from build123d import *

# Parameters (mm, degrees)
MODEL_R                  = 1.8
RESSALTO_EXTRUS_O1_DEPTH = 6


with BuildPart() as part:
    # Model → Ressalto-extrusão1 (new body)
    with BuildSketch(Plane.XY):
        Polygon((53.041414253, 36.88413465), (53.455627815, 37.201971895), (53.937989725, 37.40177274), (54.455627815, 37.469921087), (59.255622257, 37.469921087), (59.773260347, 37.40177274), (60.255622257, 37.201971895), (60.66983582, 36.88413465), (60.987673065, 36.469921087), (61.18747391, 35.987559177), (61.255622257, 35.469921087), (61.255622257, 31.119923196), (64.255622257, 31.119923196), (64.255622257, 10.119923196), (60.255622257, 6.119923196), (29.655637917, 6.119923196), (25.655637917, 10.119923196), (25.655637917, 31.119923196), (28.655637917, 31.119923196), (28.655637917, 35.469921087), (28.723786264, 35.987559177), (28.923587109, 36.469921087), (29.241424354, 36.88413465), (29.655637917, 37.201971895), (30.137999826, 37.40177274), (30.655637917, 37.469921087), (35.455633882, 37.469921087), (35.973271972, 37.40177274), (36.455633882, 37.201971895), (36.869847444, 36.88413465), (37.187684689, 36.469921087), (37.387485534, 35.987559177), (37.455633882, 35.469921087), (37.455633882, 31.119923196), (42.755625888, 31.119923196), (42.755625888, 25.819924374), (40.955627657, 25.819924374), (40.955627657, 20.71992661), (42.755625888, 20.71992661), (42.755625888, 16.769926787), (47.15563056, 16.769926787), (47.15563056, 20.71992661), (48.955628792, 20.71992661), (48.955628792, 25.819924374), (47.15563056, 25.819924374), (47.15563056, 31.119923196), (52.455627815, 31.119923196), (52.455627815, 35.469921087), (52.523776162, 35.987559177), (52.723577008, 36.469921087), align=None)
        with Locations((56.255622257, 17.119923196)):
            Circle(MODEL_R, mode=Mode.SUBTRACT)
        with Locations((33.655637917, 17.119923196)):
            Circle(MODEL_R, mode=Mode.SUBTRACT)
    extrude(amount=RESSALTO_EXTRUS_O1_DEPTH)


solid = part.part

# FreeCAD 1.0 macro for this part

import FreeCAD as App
import Part
import Sketcher
Q = App.Units.Quantity


def add_polygon(sketch, points):
    """Adds a closed chain of lines whose ends are joined by coincident constraints."""
    first, n = sketch.GeometryCount, len(points)
    for a, b in zip(points, points[1:] + points[:1]):
        sketch.addGeometry(Part.LineSegment(App.Vector(*a, 0), App.Vector(*b, 0)), False)
    for i in range(n):
        sketch.addConstraint(Sketcher.Constraint("Coincident", first + i, 2, first + (i + 1) % n, 1))

doc = App.newDocument("Part")
params = doc.addObject("Spreadsheet::Sheet", "Params")
for row, (alias, value) in enumerate([
    ("sketch1_diameter", "3.6 mm"),
    ("sketch1_width", "3 mm"),
    ("sketch1_height", "21 mm"),
    ("sketch1_width2", "1.799998 mm"),
    ("sketch1_height2", "5.299999 mm"),
    ("pad1_length", "6 mm"),
], start=1):
    params.set(f"A{row}", alias)
    params.set(f"B{row}", "=" + value)
    params.setAlias(f"B{row}", alias)

body = doc.addObject("PartDesign::Body", "Body")

# Sketch on XY plane
sketch1 = body.newObject("Sketcher::SketchObject", "Sketch")
sketch1.AttachmentSupport = (doc.getObject("XY_Plane"), [""])
sketch1.MapMode = "FlatFace"
add_polygon(sketch1, [(53.455628, 37.201972), (53.041414, 36.884135), (52.723577, 36.469921), (52.523776, 35.987559), (52.455628, 35.469921), (52.455628, 31.119923), (47.155631, 31.119923), (47.155631, 25.819924), (48.955629, 25.819924), (48.955629, 20.719927), (47.155631, 20.719927), (47.155631, 16.769927), (42.755626, 16.769927), (42.755626, 20.719927), (40.955628, 20.719927), (40.955628, 25.819924), (42.755626, 25.819924), (42.755626, 31.119923), (37.455634, 31.119923), (37.455634, 35.469921), (37.387486, 35.987559), (37.187685, 36.469921), (36.869847, 36.884135), (36.455634, 37.201972), (35.973272, 37.401773), (35.455634, 37.469921), (30.655638, 37.469921), (30.138, 37.401773), (29.655638, 37.201972), (29.241424, 36.884135), (28.923587, 36.469921), (28.723786, 35.987559), (28.655638, 35.469921), (28.655638, 31.119923), (25.655638, 31.119923), (25.655638, 10.119923), (29.655638, 6.119923), (60.255622, 6.119923), (64.255622, 10.119923), (64.255622, 31.119923), (61.255622, 31.119923), (61.255622, 35.469921), (61.187474, 35.987559), (60.987673, 36.469921), (60.669836, 36.884135), (60.255622, 37.201972), (59.77326, 37.401773), (59.255622, 37.469921), (54.455628, 37.469921), (53.93799, 37.401773)])  # lines 0-49
sketch1.addGeometry(Part.Circle(App.Vector(56.255622, 17.119923, 0), App.Vector(0, 0, 1), 1.8), False)  # 50
sketch1.addGeometry(Part.Circle(App.Vector(33.655638, 17.119923, 0), App.Vector(0, 0, 1), 1.8), False)  # 51
sketch1.addConstraint([
    Sketcher.Constraint("Vertical", 4),
    Sketcher.Constraint("Horizontal", 5),
    Sketcher.Constraint("Vertical", 6),
    Sketcher.Constraint("Horizontal", 7),
    Sketcher.Constraint("Vertical", 8),
    Sketcher.Constraint("Horizontal", 9),
    Sketcher.Constraint("Vertical", 10),
    Sketcher.Constraint("Horizontal", 11),
    Sketcher.Constraint("Vertical", 12),
    Sketcher.Constraint("Horizontal", 13),
    Sketcher.Constraint("Vertical", 14),
    Sketcher.Constraint("Horizontal", 15),
    Sketcher.Constraint("Vertical", 16),
    Sketcher.Constraint("Horizontal", 17),
    Sketcher.Constraint("Vertical", 18),
    Sketcher.Constraint("Horizontal", 25),
    Sketcher.Constraint("Vertical", 32),
    Sketcher.Constraint("Horizontal", 33),
    Sketcher.Constraint("Vertical", 34),
    Sketcher.Constraint("Horizontal", 36),
    Sketcher.Constraint("Vertical", 38),
    Sketcher.Constraint("Horizontal", 39),
    Sketcher.Constraint("Vertical", 40),
    Sketcher.Constraint("Horizontal", 47),
    Sketcher.Constraint("Equal", 50, 51),
    Sketcher.Constraint("Perpendicular", 0, 21),
    Sketcher.Constraint("Perpendicular", 1, 22),
    Sketcher.Constraint("Perpendicular", 2, 23),
    Sketcher.Constraint("Perpendicular", 3, 24),
    Sketcher.Constraint("Perpendicular", 19, 26),
    Sketcher.Constraint("Perpendicular", 20, 27),
    Sketcher.Constraint("Perpendicular", 21, 28),
    Sketcher.Constraint("Perpendicular", 22, 29),
    Sketcher.Constraint("Perpendicular", 23, 30),
    Sketcher.Constraint("Perpendicular", 24, 31),
    Sketcher.Constraint("Perpendicular", 35, 37),
    Sketcher.Constraint("Perpendicular", 26, 41),
    Sketcher.Constraint("Perpendicular", 27, 42),
    Sketcher.Constraint("Perpendicular", 28, 43),
    Sketcher.Constraint("Perpendicular", 29, 44),
    Sketcher.Constraint("Perpendicular", 30, 45),
    Sketcher.Constraint("Perpendicular", 31, 46),
    Sketcher.Constraint("Perpendicular", 41, 48),
    Sketcher.Constraint("Perpendicular", 42, 49),
    Sketcher.Constraint("Horizontal", 50, 3, 51, 3),
    Sketcher.Constraint("Horizontal", 9, 2, 12, 2),
    Sketcher.Constraint("Horizontal", 7, 2, 14, 2),
    Sketcher.Constraint("Horizontal", 5, 2, 16, 2),
    Sketcher.Constraint("Horizontal", 3, 2, 18, 2),
    Sketcher.Constraint("Horizontal", 2, 2, 19, 2),
    Sketcher.Constraint("Horizontal", 1, 2, 20, 2),
    Sketcher.Constraint("Horizontal", 0, 2, 21, 2),
    Sketcher.Constraint("Horizontal", 23, 2, 26, 2),
    Sketcher.Constraint("Horizontal", 22, 2, 27, 2),
    Sketcher.Constraint("Horizontal", 21, 2, 28, 2),
    Sketcher.Constraint("Horizontal", 20, 2, 29, 2),
    Sketcher.Constraint("Horizontal", 19, 2, 30, 2),
    Sketcher.Constraint("Horizontal", 18, 2, 31, 2),
    Sketcher.Constraint("Horizontal", 17, 2, 32, 2),
    Sketcher.Constraint("Horizontal", 34, 2, 37, 2),
    Sketcher.Constraint("Horizontal", 33, 2, 38, 2),
    Sketcher.Constraint("Horizontal", 31, 2, 40, 2),
    Sketcher.Constraint("Horizontal", 30, 2, 41, 2),
    Sketcher.Constraint("Horizontal", 29, 2, 42, 2),
    Sketcher.Constraint("Horizontal", 28, 2, 43, 2),
    Sketcher.Constraint("Horizontal", 27, 2, 44, 2),
    Sketcher.Constraint("Horizontal", 26, 2, 45, 2),
    Sketcher.Constraint("Horizontal", 25, 2, 46, 2),
    Sketcher.Constraint("Horizontal", 45, 2, 48, 2),
    Sketcher.Constraint("Horizontal", 44, 2, 49, 2),
    Sketcher.Constraint("Vertical", 6, 2, 9, 2),
    Sketcher.Constraint("Vertical", 12, 2, 15, 2),
    Sketcher.Constraint("Vertical", 27, 2, 35, 2),
    Sketcher.Constraint("Vertical", 36, 2, 44, 2),
    Sketcher.Constraint("Equal", 9, 13),
    Sketcher.Constraint("Equal", 33, 39),
    Sketcher.Constraint("Equal", 25, 47),
    Sketcher.Constraint("Equal", 5, 6),
    Sketcher.Constraint("Equal", 0, 1),
    Sketcher.Constraint("Equal", 1, 2),
    Sketcher.Constraint("Equal", 2, 3),
    Sketcher.Constraint("Equal", 3, 19),
    Sketcher.Constraint("Equal", 19, 20),
    Sketcher.Constraint("Equal", 20, 21),
    Sketcher.Constraint("Equal", 22, 23),
    Sketcher.Constraint("Equal", 23, 24),
    Sketcher.Constraint("Diameter", 50, 3.6),
    Sketcher.Constraint("DistanceX", 33, 2, 33, 1, 3.0),
    Sketcher.Constraint("DistanceY", 34, 2, 34, 1, 21.0),
    Sketcher.Constraint("DistanceX", 7, 1, 7, 2, 1.799998),
    Sketcher.Constraint("DistanceY", 6, 2, 6, 1, 5.299999),
    Sketcher.Constraint("Angle", 0, Q("-142.5 deg")),
    Sketcher.Constraint("Angle", 2, Q("-112.5 deg")),
    Sketcher.Constraint("Angle", 3, Q("-97.5 deg")),
    Sketcher.Constraint("DistanceY", 3, 2, 1, 2, 1.0),
    Sketcher.Constraint("DistanceY", 50, 3, 4, 2, 14.0),
    Sketcher.Constraint("DistanceX", 13, 2, 8, 2, 8.000001),
    Sketcher.Constraint("DistanceX", 34, 2, 51, 3, 8.0),
    Sketcher.Constraint("DistanceX", 50, 3, 36, 2, 4.0),
    Sketcher.Constraint("DistanceY", 10, 2, 10, 1, 3.95),
    Sketcher.Constraint("DistanceX", -1, 1, 26, 2, 30.138),
    Sketcher.Constraint("DistanceX", 17, 2, 17, 1, 5.299992),
    Sketcher.Constraint("DistanceX", 25, 2, 25, 1, 4.799996),
    Sketcher.Constraint("DistanceY", 4, 2, 4, 1, 4.349998),
    Sketcher.Constraint("DistanceY", 8, 2, 8, 1, 5.099998),
    Sketcher.Constraint("DistanceY", -1, 1, 1, 2, 36.469921),
])
sketch1.setExpression("Constraints[136]", "Params.sketch1_diameter")
sketch1.setExpression("Constraints[137]", "Params.sketch1_width")
sketch1.setExpression("Constraints[138]", "Params.sketch1_height")
sketch1.setExpression("Constraints[139]", "Params.sketch1_width2")
sketch1.setExpression("Constraints[140]", "Params.sketch1_height2")
pad1 = body.newObject("PartDesign::Pad", "Pad")
pad1.Profile = sketch1
pad1.setExpression("Length", "Params.pad1_length")

doc.recompute()
